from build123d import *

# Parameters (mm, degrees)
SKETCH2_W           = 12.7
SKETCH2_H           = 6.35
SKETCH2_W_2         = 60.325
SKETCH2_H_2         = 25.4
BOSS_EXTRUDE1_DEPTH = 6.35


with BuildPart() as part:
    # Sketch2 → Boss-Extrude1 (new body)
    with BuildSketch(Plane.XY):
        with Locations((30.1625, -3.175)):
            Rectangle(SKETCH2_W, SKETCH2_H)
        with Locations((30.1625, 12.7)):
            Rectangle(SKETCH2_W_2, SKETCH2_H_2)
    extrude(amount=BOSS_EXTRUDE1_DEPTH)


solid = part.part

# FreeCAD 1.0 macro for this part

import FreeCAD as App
import Part
import Sketcher
Q = App.Units.Quantity


def add_polygon(sketch, points):
    """Adds a closed chain of lines whose ends are joined by coincident constraints."""
    first, n = sketch.GeometryCount, len(points)
    for a, b in zip(points, points[1:] + points[:1]):
        sketch.addGeometry(Part.LineSegment(App.Vector(*a, 0), App.Vector(*b, 0)), False)
    for i in range(n):
        sketch.addConstraint(Sketcher.Constraint("Coincident", first + i, 2, first + (i + 1) % n, 1))

doc = App.newDocument("Part")
body = doc.addObject("PartDesign::Body", "Body")

# Sketch on XY plane
sketch1 = body.newObject("Sketcher::SketchObject", "Sketch")
sketch1.AttachmentSupport = (doc.getObject("XY_Plane"), [""])
sketch1.MapMode = "FlatFace"
add_polygon(sketch1, [(23.8125, 0), (23.8125, -6.35), (36.5125, -6.35), (36.5125, 0), (60.325, 0), (60.325, 25.4), (0, 25.4), (0, 0)])  # lines 0-7
sketch1.addConstraint(Sketcher.Constraint("Vertical", 0))
sketch1.addConstraint(Sketcher.Constraint("Horizontal", 1))
sketch1.addConstraint(Sketcher.Constraint("Vertical", 2))
sketch1.addConstraint(Sketcher.Constraint("Horizontal", 3))
sketch1.addConstraint(Sketcher.Constraint("Vertical", 4))
sketch1.addConstraint(Sketcher.Constraint("Horizontal", 5))
sketch1.addConstraint(Sketcher.Constraint("Vertical", 6))
sketch1.addConstraint(Sketcher.Constraint("Horizontal", 7))
sketch1.addConstraint(Sketcher.Constraint("Coincident", 6, 2, -1, 1))
sketch1.addConstraint(Sketcher.Constraint("PointOnObject", 2, 2, -1))
sketch1.addConstraint(Sketcher.Constraint("Equal", 3, 7))
sketch1.addConstraint(Sketcher.Constraint("DistanceY", 4, 1, 4, 2, Q("1 in")))
sketch1.addConstraint(Sketcher.Constraint("DistanceX", 1, 1, 1, 2, Q("0.5 in")))
sketch1.addConstraint(Sketcher.Constraint("DistanceY", 0, 2, 0, 1, Q("0.25 in")))
sketch1.addConstraint(Sketcher.Constraint("DistanceX", 3, 1, 3, 2, Q("0.9375 in")))
pad1 = body.newObject("PartDesign::Pad", "Pad")
pad1.Profile = sketch1
pad1.Length = Q("0.25 in")

doc.recompute()
